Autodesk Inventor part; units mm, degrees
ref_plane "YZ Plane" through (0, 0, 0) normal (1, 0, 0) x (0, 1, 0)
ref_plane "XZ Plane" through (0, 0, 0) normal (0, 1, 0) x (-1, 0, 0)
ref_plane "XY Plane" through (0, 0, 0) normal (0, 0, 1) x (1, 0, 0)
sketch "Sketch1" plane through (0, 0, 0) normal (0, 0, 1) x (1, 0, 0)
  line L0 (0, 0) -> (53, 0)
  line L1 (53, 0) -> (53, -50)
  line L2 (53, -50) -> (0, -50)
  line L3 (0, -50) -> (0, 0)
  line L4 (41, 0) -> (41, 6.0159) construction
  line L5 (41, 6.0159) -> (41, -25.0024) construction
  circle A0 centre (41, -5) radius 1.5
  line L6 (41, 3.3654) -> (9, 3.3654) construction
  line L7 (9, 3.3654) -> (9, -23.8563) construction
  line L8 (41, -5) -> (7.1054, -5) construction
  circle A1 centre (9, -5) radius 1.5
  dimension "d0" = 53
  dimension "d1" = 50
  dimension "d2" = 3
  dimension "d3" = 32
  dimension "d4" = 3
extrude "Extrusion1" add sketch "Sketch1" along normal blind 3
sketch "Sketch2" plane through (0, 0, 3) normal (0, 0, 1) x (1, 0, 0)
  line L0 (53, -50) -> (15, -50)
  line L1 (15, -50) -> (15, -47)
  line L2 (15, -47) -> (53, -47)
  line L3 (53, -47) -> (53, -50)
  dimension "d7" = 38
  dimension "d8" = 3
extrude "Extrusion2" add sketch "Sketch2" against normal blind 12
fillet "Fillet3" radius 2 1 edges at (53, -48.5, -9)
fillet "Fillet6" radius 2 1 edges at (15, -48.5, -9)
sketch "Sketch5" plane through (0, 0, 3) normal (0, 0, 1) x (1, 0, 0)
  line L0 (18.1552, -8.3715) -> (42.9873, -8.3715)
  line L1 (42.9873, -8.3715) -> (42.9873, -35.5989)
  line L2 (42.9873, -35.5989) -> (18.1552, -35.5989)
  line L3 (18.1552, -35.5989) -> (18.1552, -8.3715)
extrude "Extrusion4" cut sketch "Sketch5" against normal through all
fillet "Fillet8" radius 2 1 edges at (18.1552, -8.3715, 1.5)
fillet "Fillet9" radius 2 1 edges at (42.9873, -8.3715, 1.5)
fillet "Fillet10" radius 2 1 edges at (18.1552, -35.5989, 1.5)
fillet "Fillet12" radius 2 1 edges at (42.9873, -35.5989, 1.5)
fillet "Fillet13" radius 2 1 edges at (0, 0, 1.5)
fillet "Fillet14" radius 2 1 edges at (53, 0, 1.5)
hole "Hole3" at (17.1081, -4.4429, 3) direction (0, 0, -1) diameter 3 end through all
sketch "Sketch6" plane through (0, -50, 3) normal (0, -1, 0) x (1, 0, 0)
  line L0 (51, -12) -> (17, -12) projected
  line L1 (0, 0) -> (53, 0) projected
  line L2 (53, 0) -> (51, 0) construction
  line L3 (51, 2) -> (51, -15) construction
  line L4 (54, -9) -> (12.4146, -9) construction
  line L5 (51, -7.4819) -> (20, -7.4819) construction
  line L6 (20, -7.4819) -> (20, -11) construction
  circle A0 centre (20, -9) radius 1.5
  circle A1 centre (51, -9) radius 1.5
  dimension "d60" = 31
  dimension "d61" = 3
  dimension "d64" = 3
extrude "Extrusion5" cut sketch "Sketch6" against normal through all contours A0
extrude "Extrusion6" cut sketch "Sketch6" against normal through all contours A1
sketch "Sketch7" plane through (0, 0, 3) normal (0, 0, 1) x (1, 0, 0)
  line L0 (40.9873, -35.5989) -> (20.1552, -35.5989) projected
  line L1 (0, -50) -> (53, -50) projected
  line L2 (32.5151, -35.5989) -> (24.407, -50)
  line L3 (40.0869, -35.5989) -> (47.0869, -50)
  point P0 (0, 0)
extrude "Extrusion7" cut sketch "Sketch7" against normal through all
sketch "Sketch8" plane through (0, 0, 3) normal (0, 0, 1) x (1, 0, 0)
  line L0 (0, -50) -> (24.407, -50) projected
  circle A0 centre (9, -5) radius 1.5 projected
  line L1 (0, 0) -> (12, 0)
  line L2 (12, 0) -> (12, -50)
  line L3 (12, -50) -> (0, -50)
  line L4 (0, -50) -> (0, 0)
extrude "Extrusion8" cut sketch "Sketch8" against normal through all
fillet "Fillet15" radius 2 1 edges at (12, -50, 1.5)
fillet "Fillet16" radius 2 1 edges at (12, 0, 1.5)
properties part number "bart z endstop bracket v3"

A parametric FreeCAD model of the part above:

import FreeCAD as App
import Part
import Sketcher
Q = App.Units.Quantity


def edges_at(feature, points):
    """Names of the edges that pass closest to the given points."""
    edges = feature.Shape.Edges
    near = lambda p: min(range(len(edges)), key=lambda i: edges[i].distToShape(Part.Vertex(*p))[0])
    return sorted({f"Edge{near(p) + 1}" for p in points})


def add_polygon(sketch, points):
    """Adds a closed chain of lines whose ends are joined by coincident constraints."""
    first, n = sketch.GeometryCount, len(points)
    for a, b in zip(points, points[1:] + points[:1]):
        sketch.addGeometry(Part.LineSegment(App.Vector(*a, 0), App.Vector(*b, 0)), False)
    for i in range(n):
        sketch.addConstraint(Sketcher.Constraint("Coincident", first + i, 2, first + (i + 1) % n, 1))

doc = App.newDocument("Part")
params = doc.addObject("Spreadsheet::Sheet", "Params")
for row, (alias, value) in enumerate([
    ("sketch1_diameter", "3 mm"),
    ("sketch1_width", "53 mm"),
    ("sketch1_height", "50 mm"),
    ("pad1_length", "3 mm"),
    ("sketch2_width", "38 mm"),
    ("sketch2_height", "3 mm"),
    ("pad2_length", "12 mm"),
    ("fillet_radius", "2 mm"),
    ("fillet2_radius", "2 mm"),
    ("fillet3_radius", "2 mm"),
    ("fillet4_radius", "2 mm"),
    ("fillet5_radius", "2 mm"),
    ("fillet6_radius", "2 mm"),
    ("fillet7_radius", "2 mm"),
    ("fillet8_radius", "2 mm"),
    ("sketch4_diameter", "3 mm"),
    ("hole_diameter", "3 mm"),
    ("sketch5_diameter", "3 mm"),
    ("sketch6_diameter", "3 mm"),
    ("sketch7_width", "22.68 mm"),
    ("sketch8_diameter", "3 mm"),
    ("sketch8_width", "12 mm"),
    ("sketch8_height", "50 mm"),
    ("fillet9_radius", "2 mm"),
    ("fillet10_radius", "2 mm"),
], start=1):
    params.set(f"A{row}", alias)
    params.set(f"B{row}", "=" + value)
    params.setAlias(f"B{row}", alias)

body = doc.addObject("PartDesign::Body", "Body")

sketch1 = doc.addObject("Sketcher::SketchObject", "Sketch")
body.addObject(sketch1)
sketch1.AttachmentSupport = (doc.XY_Plane, [""])
sketch1.MapMode = "FlatFace"
add_polygon(sketch1, [(53, 0), (0, 0), (0, -50), (53, -50)])
sketch1.addGeometry(Part.Circle(App.Vector(9, -5, 0), App.Vector(0, 0, 1), 1.5), False)
sketch1.addGeometry(Part.Circle(App.Vector(41, -5, 0), App.Vector(0, 0, 1), 1.5), False)
sketch1.addConstraint([
    Sketcher.Constraint("Horizontal", 0),
    Sketcher.Constraint("Vertical", 1),
    Sketcher.Constraint("Horizontal", 2),
    Sketcher.Constraint("Vertical", 3),
    Sketcher.Constraint("Coincident", 0, 2, -1, 1),
    Sketcher.Constraint("Equal", 4, 5),
    Sketcher.Constraint("Horizontal", 4, 3, 5, 3),
    Sketcher.Constraint("Diameter", 4, 3.0),
    Sketcher.Constraint("DistanceX", 0, 2, 0, 1, 53.0),
    Sketcher.Constraint("DistanceY", 1, 2, 1, 1, 50.0),
    Sketcher.Constraint("DistanceX", 4, 3, 5, 3, 32.0),
    Sketcher.Constraint("DistanceX", -1, 1, 4, 3, 9.0),
    Sketcher.Constraint("DistanceY", 4, 3, -1, 1, 5.0),
])
sketch1.setExpression("Constraints[11]", "Params.sketch1_diameter")
sketch1.setExpression("Constraints[12]", "Params.sketch1_width")
sketch1.setExpression("Constraints[13]", "Params.sketch1_height")
pad1 = doc.addObject("PartDesign::Pad", "Pad")
body.addObject(pad1)
pad1.Profile = sketch1
pad1.setExpression("Length", "Params.pad1_length")

sketch2 = doc.addObject("Sketcher::SketchObject", "Sketch001")
body.addObject(sketch2)
sketch2.AttachmentSupport = (doc.XY_Plane, [""])
sketch2.MapMode = "FlatFace"
sketch2.AttachmentOffset = App.Placement(App.Vector(0, 0, 3), App.Rotation())
add_polygon(sketch2, [(15, -50), (53, -50), (53, -47), (15, -47)])
sketch2.addConstraint([
    Sketcher.Constraint("Horizontal", 0),
    Sketcher.Constraint("Vertical", 1),
    Sketcher.Constraint("Horizontal", 2),
    Sketcher.Constraint("Vertical", 3),
    Sketcher.Constraint("DistanceX", 0, 1, 0, 2, 38.0),
    Sketcher.Constraint("DistanceY", 1, 1, 1, 2, 3.0),
    Sketcher.Constraint("DistanceX", -1, 1, 0, 2, 53.0),
    Sketcher.Constraint("DistanceY", 0, 2, -1, 1, 50.0),
])
sketch2.setExpression("Constraints[8]", "Params.sketch2_width")
sketch2.setExpression("Constraints[9]", "Params.sketch2_height")
pad2 = doc.addObject("PartDesign::Pad", "Pad001")
body.addObject(pad2)
pad2.Profile = sketch2
pad2.setExpression("Length", "Params.pad2_length")
pad2.Reversed = True
doc.recompute()

fillet = doc.addObject("PartDesign::Fillet", "Fillet")
body.addObject(fillet)
fillet.Base = (pad2, edges_at(pad2, [(53, -48.5, -9)]))
fillet.setExpression("Radius", "Params.fillet_radius")
doc.recompute()

fillet2 = doc.addObject("PartDesign::Fillet", "Fillet001")
body.addObject(fillet2)
fillet2.Base = (fillet, edges_at(fillet, [(15, -48.5, -9)]))
fillet2.setExpression("Radius", "Params.fillet2_radius")

sketch3 = doc.addObject("Sketcher::SketchObject", "Sketch002")
body.addObject(sketch3)
sketch3.AttachmentSupport = (doc.XY_Plane, [""])
sketch3.MapMode = "FlatFace"
sketch3.AttachmentOffset = App.Placement(App.Vector(0, 0, 3), App.Rotation())
add_polygon(sketch3, [(43, -8), (18, -8), (18, -36), (43, -36)])
sketch3.addConstraint([
    Sketcher.Constraint("Horizontal", 0),
    Sketcher.Constraint("Vertical", 1),
    Sketcher.Constraint("Horizontal", 2),
    Sketcher.Constraint("Vertical", 3),
    Sketcher.Constraint("DistanceX", 0, 2, 0, 1, 24.832),
    Sketcher.Constraint("DistanceY", 1, 2, 1, 1, 27.2274),
    Sketcher.Constraint("DistanceY", 1, 2, -1, 1, 35.599),
    Sketcher.Constraint("DistanceX", -1, 1, 0, 2, 18.1552),
])
pocket1 = doc.addObject("PartDesign::Pocket", "Pocket")
body.addObject(pocket1)
pocket1.Profile = sketch3
pocket1.Type = "ThroughAll"
doc.recompute()

fillet3 = doc.addObject("PartDesign::Fillet", "Fillet002")
body.addObject(fillet3)
fillet3.Base = (pocket1, edges_at(pocket1, [(18.155, -8.371, 1.5)]))
fillet3.setExpression("Radius", "Params.fillet3_radius")
doc.recompute()

fillet4 = doc.addObject("PartDesign::Fillet", "Fillet003")
body.addObject(fillet4)
fillet4.Base = (fillet3, edges_at(fillet3, [(42.987, -8.371, 1.5)]))
fillet4.setExpression("Radius", "Params.fillet4_radius")
doc.recompute()

fillet5 = doc.addObject("PartDesign::Fillet", "Fillet004")
body.addObject(fillet5)
fillet5.Base = (fillet4, edges_at(fillet4, [(18.155, -35.599, 1.5)]))
fillet5.setExpression("Radius", "Params.fillet5_radius")
doc.recompute()

fillet6 = doc.addObject("PartDesign::Fillet", "Fillet005")
body.addObject(fillet6)
fillet6.Base = (fillet5, edges_at(fillet5, [(42.987, -35.599, 1.5)]))
fillet6.setExpression("Radius", "Params.fillet6_radius")
doc.recompute()

fillet7 = doc.addObject("PartDesign::Fillet", "Fillet006")
body.addObject(fillet7)
fillet7.Base = (fillet6, edges_at(fillet6, [(0, 0, 1.5)]))
fillet7.setExpression("Radius", "Params.fillet7_radius")
doc.recompute()

fillet8 = doc.addObject("PartDesign::Fillet", "Fillet007")
body.addObject(fillet8)
fillet8.Base = (fillet7, edges_at(fillet7, [(53, 0, 1.5)]))
fillet8.setExpression("Radius", "Params.fillet8_radius")

sketch4 = doc.addObject("Sketcher::SketchObject", "Sketch003")
body.addObject(sketch4)
sketch4.AttachmentSupport = (doc.XY_Plane, [""])
sketch4.MapMode = "FlatFace"
sketch4.AttachmentOffset = App.Placement(App.Vector(0, 0, 3), App.Rotation())
sketch4.addGeometry(Part.Circle(App.Vector(17.1, -4.4, 0), App.Vector(0, 0, 1), 1.5), False)
sketch4.addConstraint([
    Sketcher.Constraint("Diameter", 0, 3.0),
    Sketcher.Constraint("DistanceX", -1, 1, 0, 3, 17.108),
    Sketcher.Constraint("DistanceY", 0, 3, -1, 1, 4.443),
])
sketch4.setExpression("Constraints[0]", "Params.sketch4_diameter")
doc.recompute()
hole = doc.addObject("PartDesign::Hole", "Hole")
body.addObject(hole)
hole.Profile = sketch4
hole.ThreadType = "None"
hole.setExpression("Diameter", "Params.hole_diameter")
hole.DepthType = "ThroughAll"

sketch5 = doc.addObject("Sketcher::SketchObject", "Sketch004")
body.addObject(sketch5)
sketch5.AttachmentSupport = (doc.XZ_Plane, [""])
sketch5.MapMode = "FlatFace"
sketch5.AttachmentOffset = App.Placement(App.Vector(0, 0, 50), App.Rotation())
sketch5.addGeometry(Part.Circle(App.Vector(20, -6, 0), App.Vector(0, 0, 1), 1.5), False)
sketch5.addConstraint([
    Sketcher.Constraint("Diameter", 0, 3.0),
    Sketcher.Constraint("DistanceX", -1, 1, 0, 3, 20.0),
    Sketcher.Constraint("DistanceY", 0, 3, -1, 1, 6.0),
])
sketch5.setExpression("Constraints[0]", "Params.sketch5_diameter")
pocket2 = doc.addObject("PartDesign::Pocket", "Pocket001")
body.addObject(pocket2)
pocket2.Profile = sketch5
pocket2.Type = "ThroughAll"

sketch6 = doc.addObject("Sketcher::SketchObject", "Sketch005")
body.addObject(sketch6)
sketch6.AttachmentSupport = (doc.XZ_Plane, [""])
sketch6.MapMode = "FlatFace"
sketch6.AttachmentOffset = App.Placement(App.Vector(0, 0, 50), App.Rotation())
sketch6.addGeometry(Part.Circle(App.Vector(51, -6, 0), App.Vector(0, 0, 1), 1.5), False)
sketch6.addConstraint([
    Sketcher.Constraint("Diameter", 0, 3.0),
    Sketcher.Constraint("DistanceX", -1, 1, 0, 3, 51.0),
    Sketcher.Constraint("DistanceY", 0, 3, -1, 1, 6.0),
])
sketch6.setExpression("Constraints[0]", "Params.sketch6_diameter")
pocket3 = doc.addObject("PartDesign::Pocket", "Pocket002")
body.addObject(pocket3)
pocket3.Profile = sketch6
pocket3.Type = "ThroughAll"

sketch7 = doc.addObject("Sketcher::SketchObject", "Sketch006")
body.addObject(sketch7)
sketch7.AttachmentSupport = (doc.XY_Plane, [""])
sketch7.MapMode = "FlatFace"
sketch7.AttachmentOffset = App.Placement(App.Vector(0, 0, 3), App.Rotation())
add_polygon(sketch7, [(47, -50), (40, -36), (33, -36), (24, -50)])
sketch7.addConstraint([
    Sketcher.Constraint("Horizontal", 1),
    Sketcher.Constraint("Horizontal", 3),
    Sketcher.Constraint("DistanceY", 2, 2, -1, 1, 50.0),
    Sketcher.Constraint("DistanceX", 0, 2, 3, 2, 7.0),
    Sketcher.Constraint("DistanceX", 3, 1, 3, 2, 22.68),
    Sketcher.Constraint("Angle", 2, Q("-119.3804 deg")),
    Sketcher.Constraint("DistanceX", 1, 2, 1, 1, 7.5718),
    Sketcher.Constraint("DistanceX", -1, 1, 0, 2, 40.087),
])
sketch7.setExpression("Constraints[8]", "Params.sketch7_width")
pocket4 = doc.addObject("PartDesign::Pocket", "Pocket003")
body.addObject(pocket4)
pocket4.Profile = sketch7
pocket4.Type = "ThroughAll"

sketch8 = doc.addObject("Sketcher::SketchObject", "Sketch007")
body.addObject(sketch8)
sketch8.AttachmentSupport = (doc.XY_Plane, [""])
sketch8.MapMode = "FlatFace"
sketch8.AttachmentOffset = App.Placement(App.Vector(0, 0, 3), App.Rotation())
add_polygon(sketch8, [(0, 0), (0, -50), (12, -50), (12, 0)])
sketch8.addGeometry(Part.Circle(App.Vector(9, -5, 0), App.Vector(0, 0, 1), 1.5), False)
sketch8.addConstraint([
    Sketcher.Constraint("Vertical", 0),
    Sketcher.Constraint("Horizontal", 1),
    Sketcher.Constraint("Vertical", 2),
    Sketcher.Constraint("Horizontal", 3),
    Sketcher.Constraint("Coincident", 3, 2, -1, 1),
    Sketcher.Constraint("Diameter", 4, 3.0),
    Sketcher.Constraint("DistanceX", 1, 1, 1, 2, 12.0),
    Sketcher.Constraint("DistanceY", 0, 2, 0, 1, 50.0),
    Sketcher.Constraint("DistanceX", -1, 1, 4, 3, 9.0),
    Sketcher.Constraint("DistanceY", 4, 3, -1, 1, 5.0),
])
sketch8.setExpression("Constraints[9]", "Params.sketch8_diameter")
sketch8.setExpression("Constraints[10]", "Params.sketch8_width")
sketch8.setExpression("Constraints[11]", "Params.sketch8_height")
pocket5 = doc.addObject("PartDesign::Pocket", "Pocket004")
body.addObject(pocket5)
pocket5.Profile = sketch8
pocket5.Type = "ThroughAll"
doc.recompute()

fillet9 = doc.addObject("PartDesign::Fillet", "Fillet008")
body.addObject(fillet9)
fillet9.Base = (pocket5, edges_at(pocket5, [(12, -50, 1.5)]))
fillet9.setExpression("Radius", "Params.fillet9_radius")
doc.recompute()

fillet10 = doc.addObject("PartDesign::Fillet", "Fillet009")
body.addObject(fillet10)
fillet10.Base = (fillet9, edges_at(fillet9, [(12, 0, 1.5)]))
fillet10.setExpression("Radius", "Params.fillet10_radius")

doc.recompute()
